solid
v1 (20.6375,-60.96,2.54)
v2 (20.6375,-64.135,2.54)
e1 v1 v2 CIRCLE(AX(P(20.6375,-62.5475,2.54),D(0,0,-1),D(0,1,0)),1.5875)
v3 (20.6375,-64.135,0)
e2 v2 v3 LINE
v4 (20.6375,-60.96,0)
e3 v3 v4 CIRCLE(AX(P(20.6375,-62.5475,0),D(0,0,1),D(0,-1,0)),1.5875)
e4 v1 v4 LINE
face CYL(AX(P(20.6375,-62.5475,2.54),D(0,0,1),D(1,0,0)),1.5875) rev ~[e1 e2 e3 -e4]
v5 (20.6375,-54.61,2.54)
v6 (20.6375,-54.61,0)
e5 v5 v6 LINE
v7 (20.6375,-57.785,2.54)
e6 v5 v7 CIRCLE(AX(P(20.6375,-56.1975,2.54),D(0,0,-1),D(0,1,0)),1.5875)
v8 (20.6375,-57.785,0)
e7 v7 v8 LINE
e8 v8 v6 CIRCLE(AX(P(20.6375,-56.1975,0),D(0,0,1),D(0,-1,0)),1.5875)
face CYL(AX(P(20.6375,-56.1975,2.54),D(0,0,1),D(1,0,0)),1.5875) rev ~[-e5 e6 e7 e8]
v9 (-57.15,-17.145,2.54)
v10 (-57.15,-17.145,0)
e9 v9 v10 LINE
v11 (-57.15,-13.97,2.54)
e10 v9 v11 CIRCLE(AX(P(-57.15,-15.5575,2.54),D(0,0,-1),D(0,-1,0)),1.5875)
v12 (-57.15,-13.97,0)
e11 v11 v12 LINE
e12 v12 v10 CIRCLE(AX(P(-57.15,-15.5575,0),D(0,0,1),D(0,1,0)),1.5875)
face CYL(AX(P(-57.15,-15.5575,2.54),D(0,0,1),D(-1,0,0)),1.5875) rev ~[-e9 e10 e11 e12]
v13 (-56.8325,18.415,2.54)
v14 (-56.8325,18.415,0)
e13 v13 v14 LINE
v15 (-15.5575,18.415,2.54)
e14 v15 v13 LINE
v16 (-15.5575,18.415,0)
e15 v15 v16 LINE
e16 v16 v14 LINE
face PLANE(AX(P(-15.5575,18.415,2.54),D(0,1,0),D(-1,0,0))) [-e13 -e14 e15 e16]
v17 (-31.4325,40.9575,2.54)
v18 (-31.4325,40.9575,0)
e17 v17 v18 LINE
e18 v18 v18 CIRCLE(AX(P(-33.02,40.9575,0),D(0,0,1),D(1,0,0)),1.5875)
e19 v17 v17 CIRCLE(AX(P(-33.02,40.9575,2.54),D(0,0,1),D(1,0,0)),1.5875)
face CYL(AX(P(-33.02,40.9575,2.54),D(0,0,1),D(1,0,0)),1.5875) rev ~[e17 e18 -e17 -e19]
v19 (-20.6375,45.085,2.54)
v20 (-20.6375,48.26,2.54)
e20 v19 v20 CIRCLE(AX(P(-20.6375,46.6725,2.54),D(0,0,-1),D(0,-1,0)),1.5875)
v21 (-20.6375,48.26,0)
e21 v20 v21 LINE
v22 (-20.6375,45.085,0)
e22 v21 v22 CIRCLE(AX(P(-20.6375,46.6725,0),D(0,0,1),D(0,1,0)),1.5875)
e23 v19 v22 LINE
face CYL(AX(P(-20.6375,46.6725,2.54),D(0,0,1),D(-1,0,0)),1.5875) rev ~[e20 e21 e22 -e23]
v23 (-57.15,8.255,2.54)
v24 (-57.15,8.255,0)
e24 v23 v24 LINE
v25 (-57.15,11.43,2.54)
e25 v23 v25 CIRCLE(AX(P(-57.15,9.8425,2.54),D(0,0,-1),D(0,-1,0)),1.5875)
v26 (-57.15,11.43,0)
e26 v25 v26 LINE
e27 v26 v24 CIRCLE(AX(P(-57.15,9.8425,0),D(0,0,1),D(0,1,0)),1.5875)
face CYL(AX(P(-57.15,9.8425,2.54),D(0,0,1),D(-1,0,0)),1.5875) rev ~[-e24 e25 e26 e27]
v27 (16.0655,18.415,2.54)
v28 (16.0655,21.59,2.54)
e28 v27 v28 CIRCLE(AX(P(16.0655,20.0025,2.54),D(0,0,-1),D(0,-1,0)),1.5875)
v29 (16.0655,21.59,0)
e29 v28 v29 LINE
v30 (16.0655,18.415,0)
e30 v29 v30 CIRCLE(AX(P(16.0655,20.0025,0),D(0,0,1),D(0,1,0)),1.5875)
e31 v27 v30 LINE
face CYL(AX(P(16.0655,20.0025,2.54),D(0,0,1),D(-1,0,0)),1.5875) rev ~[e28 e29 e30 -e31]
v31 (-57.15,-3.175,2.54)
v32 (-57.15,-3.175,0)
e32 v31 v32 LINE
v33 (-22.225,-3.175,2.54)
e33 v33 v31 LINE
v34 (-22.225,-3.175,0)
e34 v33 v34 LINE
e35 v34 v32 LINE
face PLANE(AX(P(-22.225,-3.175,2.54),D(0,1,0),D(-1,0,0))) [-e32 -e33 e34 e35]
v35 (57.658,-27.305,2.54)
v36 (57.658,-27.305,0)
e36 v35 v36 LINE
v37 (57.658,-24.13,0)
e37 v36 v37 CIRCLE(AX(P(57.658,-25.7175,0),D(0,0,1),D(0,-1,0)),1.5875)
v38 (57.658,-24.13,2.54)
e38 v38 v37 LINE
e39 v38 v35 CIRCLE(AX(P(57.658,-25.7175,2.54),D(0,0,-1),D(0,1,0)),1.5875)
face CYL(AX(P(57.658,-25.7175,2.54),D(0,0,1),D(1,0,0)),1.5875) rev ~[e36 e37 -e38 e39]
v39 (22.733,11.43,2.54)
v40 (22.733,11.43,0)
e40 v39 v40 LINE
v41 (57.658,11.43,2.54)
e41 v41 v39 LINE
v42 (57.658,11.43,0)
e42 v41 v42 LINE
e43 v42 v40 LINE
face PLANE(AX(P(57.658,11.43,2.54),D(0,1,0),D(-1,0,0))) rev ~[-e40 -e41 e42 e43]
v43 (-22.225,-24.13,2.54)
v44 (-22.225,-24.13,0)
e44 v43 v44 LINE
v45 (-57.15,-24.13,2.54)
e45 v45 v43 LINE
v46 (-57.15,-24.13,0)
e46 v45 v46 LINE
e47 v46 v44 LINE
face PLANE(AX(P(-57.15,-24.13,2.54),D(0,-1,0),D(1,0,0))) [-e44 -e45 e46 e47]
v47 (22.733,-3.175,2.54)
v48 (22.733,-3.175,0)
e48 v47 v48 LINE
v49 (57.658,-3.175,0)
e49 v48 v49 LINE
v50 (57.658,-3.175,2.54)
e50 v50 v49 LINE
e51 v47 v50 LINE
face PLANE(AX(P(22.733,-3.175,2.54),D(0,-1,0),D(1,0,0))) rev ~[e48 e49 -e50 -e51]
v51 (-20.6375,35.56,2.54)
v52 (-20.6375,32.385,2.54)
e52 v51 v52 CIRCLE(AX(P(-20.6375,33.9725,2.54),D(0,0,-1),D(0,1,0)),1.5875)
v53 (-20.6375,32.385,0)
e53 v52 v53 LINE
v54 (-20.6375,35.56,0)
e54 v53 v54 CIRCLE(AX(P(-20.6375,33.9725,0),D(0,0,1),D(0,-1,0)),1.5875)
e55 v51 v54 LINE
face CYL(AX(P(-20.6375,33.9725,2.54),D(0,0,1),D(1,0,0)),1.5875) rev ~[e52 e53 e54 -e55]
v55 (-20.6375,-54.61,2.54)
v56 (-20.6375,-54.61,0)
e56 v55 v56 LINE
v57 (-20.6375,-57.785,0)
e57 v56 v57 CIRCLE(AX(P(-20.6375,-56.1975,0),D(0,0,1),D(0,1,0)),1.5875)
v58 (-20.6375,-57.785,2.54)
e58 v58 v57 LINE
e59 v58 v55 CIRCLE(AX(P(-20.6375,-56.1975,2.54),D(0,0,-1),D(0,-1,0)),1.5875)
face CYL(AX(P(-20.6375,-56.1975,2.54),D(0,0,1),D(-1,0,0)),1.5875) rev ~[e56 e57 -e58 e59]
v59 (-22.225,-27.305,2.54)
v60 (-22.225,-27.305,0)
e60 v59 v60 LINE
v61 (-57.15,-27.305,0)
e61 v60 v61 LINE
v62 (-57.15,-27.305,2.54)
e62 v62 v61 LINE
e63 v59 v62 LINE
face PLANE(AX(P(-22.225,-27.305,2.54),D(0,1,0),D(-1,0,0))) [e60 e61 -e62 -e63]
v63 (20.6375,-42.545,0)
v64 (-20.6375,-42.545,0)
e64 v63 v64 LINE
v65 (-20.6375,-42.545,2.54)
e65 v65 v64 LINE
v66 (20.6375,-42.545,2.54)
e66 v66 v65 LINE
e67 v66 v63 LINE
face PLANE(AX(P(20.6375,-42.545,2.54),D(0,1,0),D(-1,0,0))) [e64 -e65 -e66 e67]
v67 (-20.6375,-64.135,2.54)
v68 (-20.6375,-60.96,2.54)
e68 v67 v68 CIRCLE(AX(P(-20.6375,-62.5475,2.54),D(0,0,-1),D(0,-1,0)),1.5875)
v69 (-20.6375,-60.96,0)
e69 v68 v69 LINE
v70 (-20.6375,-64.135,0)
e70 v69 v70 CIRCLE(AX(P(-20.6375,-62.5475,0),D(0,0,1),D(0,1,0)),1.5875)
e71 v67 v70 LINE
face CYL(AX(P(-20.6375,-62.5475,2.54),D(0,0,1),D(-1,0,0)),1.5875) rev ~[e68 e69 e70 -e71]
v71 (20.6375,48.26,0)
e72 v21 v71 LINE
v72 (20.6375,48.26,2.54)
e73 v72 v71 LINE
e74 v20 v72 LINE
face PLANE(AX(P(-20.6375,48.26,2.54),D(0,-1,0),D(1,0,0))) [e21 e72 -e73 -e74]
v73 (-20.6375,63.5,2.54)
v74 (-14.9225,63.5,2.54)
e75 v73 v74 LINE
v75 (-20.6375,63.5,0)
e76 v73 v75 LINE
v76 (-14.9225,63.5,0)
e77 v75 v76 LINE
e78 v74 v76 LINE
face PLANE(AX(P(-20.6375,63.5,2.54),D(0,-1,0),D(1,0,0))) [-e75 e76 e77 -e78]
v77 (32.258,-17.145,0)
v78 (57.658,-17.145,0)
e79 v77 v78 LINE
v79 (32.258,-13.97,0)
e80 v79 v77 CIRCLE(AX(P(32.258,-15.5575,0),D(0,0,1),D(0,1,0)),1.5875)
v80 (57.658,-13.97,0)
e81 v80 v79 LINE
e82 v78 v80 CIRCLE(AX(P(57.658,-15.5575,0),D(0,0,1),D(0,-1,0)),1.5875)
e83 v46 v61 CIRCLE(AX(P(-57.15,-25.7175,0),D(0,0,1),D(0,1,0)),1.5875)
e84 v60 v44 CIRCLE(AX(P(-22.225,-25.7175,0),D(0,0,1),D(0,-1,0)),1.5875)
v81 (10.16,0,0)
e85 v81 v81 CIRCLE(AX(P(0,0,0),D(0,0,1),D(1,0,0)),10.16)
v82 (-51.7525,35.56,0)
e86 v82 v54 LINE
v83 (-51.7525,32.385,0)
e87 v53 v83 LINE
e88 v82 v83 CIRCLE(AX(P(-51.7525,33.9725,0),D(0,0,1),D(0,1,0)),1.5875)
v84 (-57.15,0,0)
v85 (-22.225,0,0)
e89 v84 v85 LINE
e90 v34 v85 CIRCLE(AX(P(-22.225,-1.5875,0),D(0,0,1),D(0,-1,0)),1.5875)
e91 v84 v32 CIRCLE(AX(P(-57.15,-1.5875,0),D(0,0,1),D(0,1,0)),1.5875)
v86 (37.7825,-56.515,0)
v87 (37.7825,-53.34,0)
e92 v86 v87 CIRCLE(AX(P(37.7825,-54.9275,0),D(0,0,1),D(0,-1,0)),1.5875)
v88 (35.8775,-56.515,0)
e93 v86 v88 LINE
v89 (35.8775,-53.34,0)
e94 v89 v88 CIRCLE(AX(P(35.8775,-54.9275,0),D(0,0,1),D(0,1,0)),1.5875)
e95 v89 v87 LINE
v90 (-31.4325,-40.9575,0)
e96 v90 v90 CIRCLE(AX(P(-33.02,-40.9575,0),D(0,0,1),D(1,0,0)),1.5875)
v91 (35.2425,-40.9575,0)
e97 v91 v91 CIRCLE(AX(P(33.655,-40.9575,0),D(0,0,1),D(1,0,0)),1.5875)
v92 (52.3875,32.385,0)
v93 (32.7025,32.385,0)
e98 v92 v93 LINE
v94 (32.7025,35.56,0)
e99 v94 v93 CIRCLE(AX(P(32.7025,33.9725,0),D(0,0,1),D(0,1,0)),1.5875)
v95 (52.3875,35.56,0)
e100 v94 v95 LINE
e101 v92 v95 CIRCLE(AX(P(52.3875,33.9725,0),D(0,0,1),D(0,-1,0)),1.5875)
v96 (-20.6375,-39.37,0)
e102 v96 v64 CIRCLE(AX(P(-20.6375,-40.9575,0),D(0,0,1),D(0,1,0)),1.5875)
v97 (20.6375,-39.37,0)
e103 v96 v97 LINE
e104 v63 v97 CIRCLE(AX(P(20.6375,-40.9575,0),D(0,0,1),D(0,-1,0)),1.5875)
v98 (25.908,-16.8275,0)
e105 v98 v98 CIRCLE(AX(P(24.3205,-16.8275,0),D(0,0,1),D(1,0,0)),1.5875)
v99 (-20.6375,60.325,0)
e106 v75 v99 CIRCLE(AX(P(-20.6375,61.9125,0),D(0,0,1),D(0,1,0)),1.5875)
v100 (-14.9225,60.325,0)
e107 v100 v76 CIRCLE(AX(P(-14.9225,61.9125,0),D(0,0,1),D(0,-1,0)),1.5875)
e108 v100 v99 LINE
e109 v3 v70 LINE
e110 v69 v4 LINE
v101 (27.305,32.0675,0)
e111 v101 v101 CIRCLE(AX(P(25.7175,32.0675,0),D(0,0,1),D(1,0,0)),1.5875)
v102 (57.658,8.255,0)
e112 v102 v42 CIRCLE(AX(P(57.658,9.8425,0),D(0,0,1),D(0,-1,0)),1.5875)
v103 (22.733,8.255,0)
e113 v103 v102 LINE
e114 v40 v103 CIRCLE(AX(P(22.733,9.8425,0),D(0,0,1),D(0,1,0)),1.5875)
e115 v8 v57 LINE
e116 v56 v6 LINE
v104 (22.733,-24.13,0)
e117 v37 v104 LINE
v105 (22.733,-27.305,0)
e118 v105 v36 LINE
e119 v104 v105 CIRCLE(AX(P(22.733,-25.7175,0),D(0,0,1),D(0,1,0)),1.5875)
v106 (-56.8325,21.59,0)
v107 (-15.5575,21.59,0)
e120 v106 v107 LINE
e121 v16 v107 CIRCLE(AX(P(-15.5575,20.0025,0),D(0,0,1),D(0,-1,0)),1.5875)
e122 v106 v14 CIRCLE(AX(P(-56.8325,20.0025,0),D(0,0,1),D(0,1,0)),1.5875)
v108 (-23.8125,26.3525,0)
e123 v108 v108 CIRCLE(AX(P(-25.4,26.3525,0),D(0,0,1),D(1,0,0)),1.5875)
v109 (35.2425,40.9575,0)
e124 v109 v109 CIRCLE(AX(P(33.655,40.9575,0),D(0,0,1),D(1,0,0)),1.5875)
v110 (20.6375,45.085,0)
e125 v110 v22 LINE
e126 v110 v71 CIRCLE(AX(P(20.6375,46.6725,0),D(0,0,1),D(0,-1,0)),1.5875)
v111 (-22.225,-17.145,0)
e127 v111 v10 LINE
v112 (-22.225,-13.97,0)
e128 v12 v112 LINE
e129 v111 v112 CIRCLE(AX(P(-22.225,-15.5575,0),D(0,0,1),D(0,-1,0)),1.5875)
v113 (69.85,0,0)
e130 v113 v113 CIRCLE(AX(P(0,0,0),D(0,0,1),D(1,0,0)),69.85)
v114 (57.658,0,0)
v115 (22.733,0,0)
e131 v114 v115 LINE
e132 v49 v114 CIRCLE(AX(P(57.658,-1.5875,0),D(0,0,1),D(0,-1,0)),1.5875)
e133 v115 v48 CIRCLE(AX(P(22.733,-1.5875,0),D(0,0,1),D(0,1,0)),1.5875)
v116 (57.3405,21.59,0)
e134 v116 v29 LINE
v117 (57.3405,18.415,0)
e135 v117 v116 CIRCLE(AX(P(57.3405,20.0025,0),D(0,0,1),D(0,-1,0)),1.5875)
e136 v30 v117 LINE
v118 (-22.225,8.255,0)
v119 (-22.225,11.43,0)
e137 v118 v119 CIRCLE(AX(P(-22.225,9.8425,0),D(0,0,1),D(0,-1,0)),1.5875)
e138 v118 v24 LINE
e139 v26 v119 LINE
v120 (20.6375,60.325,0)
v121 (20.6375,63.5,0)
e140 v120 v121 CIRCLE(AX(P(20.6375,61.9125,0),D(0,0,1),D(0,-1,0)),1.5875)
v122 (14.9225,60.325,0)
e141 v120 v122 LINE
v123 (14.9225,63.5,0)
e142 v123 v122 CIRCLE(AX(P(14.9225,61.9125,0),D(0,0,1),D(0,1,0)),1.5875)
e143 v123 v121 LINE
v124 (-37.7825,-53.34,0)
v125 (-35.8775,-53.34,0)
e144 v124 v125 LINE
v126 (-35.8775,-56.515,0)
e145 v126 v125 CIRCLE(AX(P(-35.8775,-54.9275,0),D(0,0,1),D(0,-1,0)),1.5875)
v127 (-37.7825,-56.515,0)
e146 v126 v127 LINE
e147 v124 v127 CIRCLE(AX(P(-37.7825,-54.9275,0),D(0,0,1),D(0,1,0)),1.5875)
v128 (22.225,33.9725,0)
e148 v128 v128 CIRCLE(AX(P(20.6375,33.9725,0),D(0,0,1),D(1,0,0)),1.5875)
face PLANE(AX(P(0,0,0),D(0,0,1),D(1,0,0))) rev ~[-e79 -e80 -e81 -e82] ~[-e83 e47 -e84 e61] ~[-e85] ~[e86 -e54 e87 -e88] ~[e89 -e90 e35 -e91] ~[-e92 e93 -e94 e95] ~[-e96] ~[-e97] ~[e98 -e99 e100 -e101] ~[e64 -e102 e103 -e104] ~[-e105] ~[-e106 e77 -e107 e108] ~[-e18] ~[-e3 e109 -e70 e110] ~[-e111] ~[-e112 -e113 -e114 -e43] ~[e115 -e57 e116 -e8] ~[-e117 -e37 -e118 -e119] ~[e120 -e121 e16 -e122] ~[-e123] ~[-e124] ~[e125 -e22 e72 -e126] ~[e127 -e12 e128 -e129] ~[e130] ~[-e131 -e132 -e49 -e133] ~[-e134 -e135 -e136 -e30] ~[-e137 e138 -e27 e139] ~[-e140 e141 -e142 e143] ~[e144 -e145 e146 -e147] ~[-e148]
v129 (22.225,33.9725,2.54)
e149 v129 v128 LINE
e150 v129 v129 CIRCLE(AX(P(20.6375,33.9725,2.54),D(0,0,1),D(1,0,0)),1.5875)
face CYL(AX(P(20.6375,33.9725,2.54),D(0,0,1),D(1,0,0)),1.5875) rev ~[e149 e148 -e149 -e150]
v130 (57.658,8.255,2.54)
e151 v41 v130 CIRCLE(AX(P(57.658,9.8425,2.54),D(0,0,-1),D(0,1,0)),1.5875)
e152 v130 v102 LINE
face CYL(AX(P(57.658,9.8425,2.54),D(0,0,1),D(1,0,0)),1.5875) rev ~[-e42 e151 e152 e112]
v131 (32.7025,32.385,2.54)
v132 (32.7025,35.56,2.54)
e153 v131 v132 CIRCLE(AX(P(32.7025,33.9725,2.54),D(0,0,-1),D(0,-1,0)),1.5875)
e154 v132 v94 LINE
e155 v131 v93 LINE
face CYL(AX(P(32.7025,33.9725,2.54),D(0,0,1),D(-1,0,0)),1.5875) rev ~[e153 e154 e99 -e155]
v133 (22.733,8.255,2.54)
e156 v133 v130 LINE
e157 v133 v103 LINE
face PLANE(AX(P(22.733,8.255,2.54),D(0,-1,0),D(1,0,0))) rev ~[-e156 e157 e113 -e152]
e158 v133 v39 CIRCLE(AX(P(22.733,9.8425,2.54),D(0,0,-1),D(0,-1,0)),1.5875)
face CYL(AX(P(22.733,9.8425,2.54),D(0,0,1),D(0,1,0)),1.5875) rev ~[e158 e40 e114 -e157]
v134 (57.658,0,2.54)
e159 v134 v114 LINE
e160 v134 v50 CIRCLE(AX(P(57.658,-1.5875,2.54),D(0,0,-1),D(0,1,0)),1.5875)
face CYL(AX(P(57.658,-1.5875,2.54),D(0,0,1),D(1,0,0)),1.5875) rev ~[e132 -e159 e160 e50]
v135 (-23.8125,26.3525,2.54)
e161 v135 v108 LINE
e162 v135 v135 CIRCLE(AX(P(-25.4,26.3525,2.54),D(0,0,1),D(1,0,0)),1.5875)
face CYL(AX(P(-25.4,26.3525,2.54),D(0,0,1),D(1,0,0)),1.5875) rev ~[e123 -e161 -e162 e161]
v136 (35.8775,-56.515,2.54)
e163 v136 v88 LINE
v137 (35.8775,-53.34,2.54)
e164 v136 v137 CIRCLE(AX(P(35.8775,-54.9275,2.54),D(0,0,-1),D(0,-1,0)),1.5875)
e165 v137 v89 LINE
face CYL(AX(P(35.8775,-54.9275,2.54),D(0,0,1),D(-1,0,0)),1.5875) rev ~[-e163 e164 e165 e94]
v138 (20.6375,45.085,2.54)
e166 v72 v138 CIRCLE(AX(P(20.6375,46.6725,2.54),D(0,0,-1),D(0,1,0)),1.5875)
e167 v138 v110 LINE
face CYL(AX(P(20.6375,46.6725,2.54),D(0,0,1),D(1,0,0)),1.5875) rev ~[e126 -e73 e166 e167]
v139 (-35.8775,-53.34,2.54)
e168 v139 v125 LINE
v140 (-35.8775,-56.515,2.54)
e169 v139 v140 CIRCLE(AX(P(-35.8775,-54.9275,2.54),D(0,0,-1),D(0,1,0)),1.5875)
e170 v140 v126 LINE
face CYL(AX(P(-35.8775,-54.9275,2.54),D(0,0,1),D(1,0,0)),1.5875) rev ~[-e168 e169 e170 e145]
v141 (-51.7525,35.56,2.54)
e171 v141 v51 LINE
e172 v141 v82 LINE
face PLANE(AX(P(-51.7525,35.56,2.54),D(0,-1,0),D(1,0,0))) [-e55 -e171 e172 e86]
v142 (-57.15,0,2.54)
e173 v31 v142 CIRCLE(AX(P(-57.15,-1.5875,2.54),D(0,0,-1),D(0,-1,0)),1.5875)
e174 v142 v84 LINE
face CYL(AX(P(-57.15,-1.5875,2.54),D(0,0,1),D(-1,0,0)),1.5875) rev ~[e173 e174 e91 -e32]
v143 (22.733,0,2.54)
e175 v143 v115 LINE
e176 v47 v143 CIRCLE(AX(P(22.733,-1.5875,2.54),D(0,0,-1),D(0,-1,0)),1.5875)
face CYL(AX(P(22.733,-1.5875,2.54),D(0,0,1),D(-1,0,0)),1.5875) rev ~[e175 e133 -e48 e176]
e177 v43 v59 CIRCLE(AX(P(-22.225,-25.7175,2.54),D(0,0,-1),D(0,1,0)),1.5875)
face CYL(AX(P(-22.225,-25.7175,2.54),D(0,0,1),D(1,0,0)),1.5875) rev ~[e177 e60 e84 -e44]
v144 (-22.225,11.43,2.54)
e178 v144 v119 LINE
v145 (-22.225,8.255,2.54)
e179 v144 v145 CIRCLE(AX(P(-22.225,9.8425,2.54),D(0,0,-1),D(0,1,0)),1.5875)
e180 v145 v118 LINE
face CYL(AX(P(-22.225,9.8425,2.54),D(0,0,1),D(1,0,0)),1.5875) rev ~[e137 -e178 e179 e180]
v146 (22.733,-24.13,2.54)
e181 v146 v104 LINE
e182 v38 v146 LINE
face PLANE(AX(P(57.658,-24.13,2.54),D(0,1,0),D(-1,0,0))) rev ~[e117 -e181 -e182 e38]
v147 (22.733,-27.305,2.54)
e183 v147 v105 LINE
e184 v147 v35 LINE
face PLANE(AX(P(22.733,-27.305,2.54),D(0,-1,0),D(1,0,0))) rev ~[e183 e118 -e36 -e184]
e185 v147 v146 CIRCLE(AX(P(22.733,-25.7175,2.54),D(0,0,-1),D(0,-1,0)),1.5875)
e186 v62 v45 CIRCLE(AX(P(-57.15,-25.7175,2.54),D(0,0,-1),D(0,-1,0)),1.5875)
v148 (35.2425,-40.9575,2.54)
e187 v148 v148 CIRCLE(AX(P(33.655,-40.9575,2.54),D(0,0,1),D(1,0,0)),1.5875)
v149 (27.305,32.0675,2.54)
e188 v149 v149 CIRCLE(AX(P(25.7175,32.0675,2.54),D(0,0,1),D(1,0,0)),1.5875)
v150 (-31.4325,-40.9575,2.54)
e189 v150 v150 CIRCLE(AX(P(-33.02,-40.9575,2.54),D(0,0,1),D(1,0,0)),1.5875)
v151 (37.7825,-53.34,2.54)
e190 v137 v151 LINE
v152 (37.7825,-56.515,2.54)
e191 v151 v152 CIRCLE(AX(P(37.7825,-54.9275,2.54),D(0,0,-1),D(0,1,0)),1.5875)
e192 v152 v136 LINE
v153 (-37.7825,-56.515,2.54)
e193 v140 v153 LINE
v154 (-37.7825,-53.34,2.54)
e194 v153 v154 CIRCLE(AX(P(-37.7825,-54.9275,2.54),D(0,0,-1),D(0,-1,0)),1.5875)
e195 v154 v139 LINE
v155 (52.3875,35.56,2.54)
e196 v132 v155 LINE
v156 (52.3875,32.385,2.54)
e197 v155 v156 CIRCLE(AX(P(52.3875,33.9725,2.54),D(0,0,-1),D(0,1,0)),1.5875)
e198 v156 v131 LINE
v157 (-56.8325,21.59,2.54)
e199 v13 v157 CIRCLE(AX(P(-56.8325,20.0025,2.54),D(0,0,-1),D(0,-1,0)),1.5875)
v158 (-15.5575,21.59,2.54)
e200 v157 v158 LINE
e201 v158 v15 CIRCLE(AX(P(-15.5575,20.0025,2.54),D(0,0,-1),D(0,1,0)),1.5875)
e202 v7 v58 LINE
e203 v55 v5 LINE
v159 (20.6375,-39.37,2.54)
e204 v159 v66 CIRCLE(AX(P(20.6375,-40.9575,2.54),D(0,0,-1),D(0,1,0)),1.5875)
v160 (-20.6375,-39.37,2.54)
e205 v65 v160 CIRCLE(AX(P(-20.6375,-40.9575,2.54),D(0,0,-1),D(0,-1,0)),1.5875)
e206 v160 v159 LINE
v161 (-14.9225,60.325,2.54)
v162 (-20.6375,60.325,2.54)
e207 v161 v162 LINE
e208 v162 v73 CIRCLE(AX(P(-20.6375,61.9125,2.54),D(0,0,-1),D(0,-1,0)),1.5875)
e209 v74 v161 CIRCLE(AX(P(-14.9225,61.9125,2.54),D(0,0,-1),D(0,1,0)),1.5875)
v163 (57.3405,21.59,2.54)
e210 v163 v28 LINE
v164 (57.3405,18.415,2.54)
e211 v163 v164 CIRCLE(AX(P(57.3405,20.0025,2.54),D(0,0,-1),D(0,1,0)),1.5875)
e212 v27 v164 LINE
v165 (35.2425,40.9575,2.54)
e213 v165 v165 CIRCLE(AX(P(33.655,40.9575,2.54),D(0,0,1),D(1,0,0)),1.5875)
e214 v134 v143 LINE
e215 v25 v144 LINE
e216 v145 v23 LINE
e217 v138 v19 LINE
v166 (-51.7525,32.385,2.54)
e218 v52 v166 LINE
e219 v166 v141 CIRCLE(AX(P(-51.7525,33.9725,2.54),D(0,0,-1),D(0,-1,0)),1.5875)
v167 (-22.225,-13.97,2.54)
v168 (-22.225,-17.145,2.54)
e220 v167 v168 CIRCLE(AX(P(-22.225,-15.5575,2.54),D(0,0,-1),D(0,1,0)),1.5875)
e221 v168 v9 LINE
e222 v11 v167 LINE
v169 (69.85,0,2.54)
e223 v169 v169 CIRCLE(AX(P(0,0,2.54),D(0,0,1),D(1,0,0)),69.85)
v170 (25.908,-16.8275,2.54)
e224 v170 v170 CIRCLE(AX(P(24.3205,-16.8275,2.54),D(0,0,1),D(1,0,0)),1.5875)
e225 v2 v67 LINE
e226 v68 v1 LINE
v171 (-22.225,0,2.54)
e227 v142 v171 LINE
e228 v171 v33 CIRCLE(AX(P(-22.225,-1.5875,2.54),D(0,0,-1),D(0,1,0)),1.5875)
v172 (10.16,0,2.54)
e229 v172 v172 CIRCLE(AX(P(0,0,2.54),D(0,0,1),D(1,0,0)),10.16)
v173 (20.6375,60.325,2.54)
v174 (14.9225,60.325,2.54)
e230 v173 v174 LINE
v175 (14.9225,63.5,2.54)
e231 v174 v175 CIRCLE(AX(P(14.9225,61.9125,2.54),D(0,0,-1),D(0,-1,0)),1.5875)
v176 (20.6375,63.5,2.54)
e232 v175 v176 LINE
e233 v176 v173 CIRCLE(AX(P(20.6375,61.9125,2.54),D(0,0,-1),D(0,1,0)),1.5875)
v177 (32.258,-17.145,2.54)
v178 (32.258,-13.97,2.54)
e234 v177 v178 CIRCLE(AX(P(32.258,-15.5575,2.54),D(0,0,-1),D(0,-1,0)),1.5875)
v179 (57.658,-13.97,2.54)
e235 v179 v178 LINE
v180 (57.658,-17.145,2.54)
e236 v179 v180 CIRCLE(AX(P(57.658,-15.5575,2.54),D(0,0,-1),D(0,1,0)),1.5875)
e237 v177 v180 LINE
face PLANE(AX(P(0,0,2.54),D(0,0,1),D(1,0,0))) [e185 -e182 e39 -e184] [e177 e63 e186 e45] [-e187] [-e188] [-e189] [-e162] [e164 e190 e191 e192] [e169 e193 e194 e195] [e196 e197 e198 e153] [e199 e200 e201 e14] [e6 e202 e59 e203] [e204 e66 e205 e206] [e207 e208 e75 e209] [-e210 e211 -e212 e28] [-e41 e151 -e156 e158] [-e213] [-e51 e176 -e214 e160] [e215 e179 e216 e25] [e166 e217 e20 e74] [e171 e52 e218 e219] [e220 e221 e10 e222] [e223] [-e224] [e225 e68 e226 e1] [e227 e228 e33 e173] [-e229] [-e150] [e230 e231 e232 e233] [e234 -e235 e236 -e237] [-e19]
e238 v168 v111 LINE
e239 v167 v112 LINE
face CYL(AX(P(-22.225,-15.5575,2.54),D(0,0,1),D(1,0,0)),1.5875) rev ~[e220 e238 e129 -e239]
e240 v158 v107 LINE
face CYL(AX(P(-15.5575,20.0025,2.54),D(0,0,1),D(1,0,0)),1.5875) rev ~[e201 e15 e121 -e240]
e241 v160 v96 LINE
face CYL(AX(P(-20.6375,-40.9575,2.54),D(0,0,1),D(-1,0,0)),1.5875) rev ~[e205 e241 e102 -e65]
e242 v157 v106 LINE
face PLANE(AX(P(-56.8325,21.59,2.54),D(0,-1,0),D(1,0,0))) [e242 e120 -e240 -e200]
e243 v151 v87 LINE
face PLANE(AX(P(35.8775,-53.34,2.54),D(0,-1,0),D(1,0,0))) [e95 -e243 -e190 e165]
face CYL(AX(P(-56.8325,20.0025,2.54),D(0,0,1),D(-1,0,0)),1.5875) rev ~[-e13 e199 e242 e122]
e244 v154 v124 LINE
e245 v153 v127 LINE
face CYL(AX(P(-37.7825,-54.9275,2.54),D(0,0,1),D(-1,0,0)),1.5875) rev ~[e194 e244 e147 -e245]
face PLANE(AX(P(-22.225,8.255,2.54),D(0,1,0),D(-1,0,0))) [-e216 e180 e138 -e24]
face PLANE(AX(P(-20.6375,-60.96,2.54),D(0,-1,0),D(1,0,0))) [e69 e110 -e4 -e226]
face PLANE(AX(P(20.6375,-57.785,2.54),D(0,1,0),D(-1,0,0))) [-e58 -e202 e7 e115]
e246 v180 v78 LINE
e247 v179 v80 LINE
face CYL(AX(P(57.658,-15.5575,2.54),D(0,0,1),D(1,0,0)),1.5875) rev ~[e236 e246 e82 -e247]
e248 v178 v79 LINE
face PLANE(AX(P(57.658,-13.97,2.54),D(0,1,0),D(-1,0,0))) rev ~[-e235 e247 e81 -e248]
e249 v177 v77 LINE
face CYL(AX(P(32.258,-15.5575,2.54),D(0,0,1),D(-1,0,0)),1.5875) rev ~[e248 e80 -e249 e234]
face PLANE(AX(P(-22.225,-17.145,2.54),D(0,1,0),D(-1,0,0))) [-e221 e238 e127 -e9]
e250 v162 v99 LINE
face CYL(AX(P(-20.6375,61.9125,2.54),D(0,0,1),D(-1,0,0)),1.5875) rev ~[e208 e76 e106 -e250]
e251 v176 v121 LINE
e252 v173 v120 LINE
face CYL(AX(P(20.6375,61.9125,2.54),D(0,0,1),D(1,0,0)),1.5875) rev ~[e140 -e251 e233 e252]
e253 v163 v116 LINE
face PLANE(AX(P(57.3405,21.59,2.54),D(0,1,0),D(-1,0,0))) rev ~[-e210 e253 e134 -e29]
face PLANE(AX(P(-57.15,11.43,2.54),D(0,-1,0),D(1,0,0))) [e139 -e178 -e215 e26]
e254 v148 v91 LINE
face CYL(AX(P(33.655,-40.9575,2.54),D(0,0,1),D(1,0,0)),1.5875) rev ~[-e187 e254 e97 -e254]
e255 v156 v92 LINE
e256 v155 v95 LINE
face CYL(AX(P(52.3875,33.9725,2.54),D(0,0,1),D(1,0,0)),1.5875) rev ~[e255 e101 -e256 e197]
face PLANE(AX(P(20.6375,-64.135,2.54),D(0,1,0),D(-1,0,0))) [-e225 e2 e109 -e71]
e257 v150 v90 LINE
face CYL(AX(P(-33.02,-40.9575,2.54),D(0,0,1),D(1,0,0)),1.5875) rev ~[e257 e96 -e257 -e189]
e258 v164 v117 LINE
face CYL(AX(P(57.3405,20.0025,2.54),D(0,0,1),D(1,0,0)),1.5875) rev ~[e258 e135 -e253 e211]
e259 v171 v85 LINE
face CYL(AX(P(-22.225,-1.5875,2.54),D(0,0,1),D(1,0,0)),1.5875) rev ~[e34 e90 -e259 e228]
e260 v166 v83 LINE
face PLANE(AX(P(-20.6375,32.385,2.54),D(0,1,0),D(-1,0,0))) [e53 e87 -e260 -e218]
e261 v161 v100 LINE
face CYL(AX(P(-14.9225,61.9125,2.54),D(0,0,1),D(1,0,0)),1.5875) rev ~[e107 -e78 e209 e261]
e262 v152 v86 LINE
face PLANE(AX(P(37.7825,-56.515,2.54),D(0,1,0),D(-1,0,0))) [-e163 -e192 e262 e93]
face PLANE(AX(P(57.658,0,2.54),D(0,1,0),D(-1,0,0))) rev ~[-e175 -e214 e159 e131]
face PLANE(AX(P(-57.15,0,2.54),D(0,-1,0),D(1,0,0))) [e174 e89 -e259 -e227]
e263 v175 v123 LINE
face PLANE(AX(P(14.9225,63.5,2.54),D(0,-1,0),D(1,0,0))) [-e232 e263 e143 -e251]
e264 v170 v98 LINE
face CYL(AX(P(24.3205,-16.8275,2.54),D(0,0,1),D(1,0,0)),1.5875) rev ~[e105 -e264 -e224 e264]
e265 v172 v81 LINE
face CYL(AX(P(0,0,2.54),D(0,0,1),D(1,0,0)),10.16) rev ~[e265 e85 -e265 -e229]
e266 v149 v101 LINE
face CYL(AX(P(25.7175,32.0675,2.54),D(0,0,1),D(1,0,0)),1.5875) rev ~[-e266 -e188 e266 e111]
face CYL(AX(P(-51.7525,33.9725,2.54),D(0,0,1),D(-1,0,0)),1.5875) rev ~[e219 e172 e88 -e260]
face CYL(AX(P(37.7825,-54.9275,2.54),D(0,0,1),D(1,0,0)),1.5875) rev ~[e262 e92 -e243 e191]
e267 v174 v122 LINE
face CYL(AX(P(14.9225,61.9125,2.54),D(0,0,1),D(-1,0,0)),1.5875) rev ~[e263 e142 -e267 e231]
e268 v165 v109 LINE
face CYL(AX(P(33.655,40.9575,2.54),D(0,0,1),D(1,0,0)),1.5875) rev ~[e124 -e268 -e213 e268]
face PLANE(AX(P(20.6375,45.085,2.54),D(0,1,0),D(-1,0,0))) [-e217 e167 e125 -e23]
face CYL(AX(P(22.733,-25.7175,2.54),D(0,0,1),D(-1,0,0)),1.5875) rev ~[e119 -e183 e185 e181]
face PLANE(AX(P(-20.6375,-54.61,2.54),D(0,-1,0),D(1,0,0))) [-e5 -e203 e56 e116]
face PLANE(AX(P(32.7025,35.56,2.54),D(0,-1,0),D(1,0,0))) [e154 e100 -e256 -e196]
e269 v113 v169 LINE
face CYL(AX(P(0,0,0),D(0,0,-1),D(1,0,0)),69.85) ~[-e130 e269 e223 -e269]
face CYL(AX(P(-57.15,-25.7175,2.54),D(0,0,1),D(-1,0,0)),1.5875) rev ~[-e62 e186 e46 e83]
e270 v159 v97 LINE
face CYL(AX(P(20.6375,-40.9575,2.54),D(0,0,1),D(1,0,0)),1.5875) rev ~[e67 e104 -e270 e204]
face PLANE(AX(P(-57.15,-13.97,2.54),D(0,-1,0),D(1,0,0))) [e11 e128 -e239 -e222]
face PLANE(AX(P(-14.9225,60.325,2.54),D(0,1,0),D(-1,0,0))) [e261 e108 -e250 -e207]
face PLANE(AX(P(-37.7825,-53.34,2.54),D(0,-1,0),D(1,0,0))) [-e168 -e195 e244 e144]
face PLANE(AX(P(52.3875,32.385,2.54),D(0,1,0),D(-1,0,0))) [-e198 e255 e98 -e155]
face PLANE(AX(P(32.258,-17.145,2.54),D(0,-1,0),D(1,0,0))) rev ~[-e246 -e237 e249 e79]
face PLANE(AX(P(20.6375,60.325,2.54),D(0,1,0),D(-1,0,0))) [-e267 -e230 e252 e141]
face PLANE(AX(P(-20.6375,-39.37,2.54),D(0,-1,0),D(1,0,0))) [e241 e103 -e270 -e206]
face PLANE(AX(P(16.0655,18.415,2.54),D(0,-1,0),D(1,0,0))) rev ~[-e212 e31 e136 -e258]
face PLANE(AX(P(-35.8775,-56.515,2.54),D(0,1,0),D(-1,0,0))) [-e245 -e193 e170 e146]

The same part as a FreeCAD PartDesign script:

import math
import FreeCAD as App
import Part
import Sketcher

V = App.Vector
Q = App.Units.Quantity

doc = App.newDocument("Part")
body = doc.addObject("PartDesign::Body", "Body")

# Sketch on XY plane
sketch1 = body.newObject("Sketcher::SketchObject", "Sketch")
sketch1.AttachmentSupport = (doc.getObject("XY_Plane"), [""])
sketch1.MapMode = "FlatFace"
sketch1.addGeometry(Part.Circle(V(0, 0, 0), V(0, 0, 1), 70), False)
sketch1.addConstraint([
    Sketcher.Constraint("Coincident", 0, 3, -1, 1),
    Sketcher.Constraint("Diameter", 0, Q("5.5 in")),
])
pad1 = body.newObject("PartDesign::Pad", "Pad")
pad1.Profile = sketch1
pad1.Length = Q("0.1 in")

# Sketch on XY plane
sketch2 = body.newObject("Sketcher::SketchObject", "Sketch001")
sketch2.AttachmentSupport = (doc.getObject("XY_Plane"), [""])
sketch2.MapMode = "FlatFace"
sketch2.AttachmentOffset = App.Placement(V(0, 0, 0.1 * 25.4), App.Rotation())
sketch2.addGeometry(Part.Circle(V(0, 0, 0), V(0, 0, 1), 10), False)
sketch2.addConstraint([
    Sketcher.Constraint("Coincident", 0, 3, -1, 1),
    Sketcher.Constraint("Diameter", 0, Q("0.8 in")),
])
pocket1 = body.newObject("PartDesign::Pocket", "Pocket")
pocket1.Profile = sketch2
pocket1.Length = Q("0.1 in")

# Sketch on XY plane
sketch3 = body.newObject("Sketcher::SketchObject", "Sketch002")
sketch3.AttachmentSupport = (doc.getObject("XY_Plane"), [""])
sketch3.MapMode = "FlatFace"
sketch3.AttachmentOffset = App.Placement(V(0, 0, 0.1 * 25.4), App.Rotation())
sketch3.addGeometry([
    Part.LineSegment(V(20.6, 48.3, 0), V(-20.6, 48.3, 0)),  # 0
    Part.ArcOfCircle(Part.Circle(V(-20.6, 46.7, 0), V(0, 0, 1), 1.6), math.radians(90), math.radians(270)),  # 1
    Part.LineSegment(V(-20.6, 45.1, 0), V(20.6, 45.1, 0)),  # 2
    Part.ArcOfCircle(Part.Circle(V(20.6, 46.7, 0), V(0, 0, 1), 1.6), math.radians(-90), math.radians(90)),  # 3
    Part.LineSegment(V(20.6, 63.5, 0), V(14.9, 63.5, 0)),  # 4
    Part.ArcOfCircle(Part.Circle(V(14.9, 61.9, 0), V(0, 0, 1), 1.6), math.radians(90), math.radians(270)),  # 5
    Part.LineSegment(V(14.9, 60.3, 0), V(20.6, 60.3, 0)),  # 6
    Part.ArcOfCircle(Part.Circle(V(20.6, 61.9, 0), V(0, 0, 1), 1.6), math.radians(-90), math.radians(90)),  # 7
    Part.LineSegment(V(-20.6, 60.3, 0), V(-14.9, 60.3, 0)),  # 8
    Part.ArcOfCircle(Part.Circle(V(-14.9, 61.9, 0), V(0, 0, 1), 1.6), math.radians(-90), math.radians(90)),  # 9
    Part.LineSegment(V(-14.9, 63.5, 0), V(-20.6, 63.5, 0)),  # 10
    Part.ArcOfCircle(Part.Circle(V(-20.6, 61.9, 0), V(0, 0, 1), 1.6), math.radians(90), math.radians(270)),  # 11
    Part.Circle(V(20.6, 34, 0), V(0, 0, 1), 1.6),  # 12
    Part.LineSegment(V(52.4, 35.6, 0), V(32.7, 35.6, 0)),  # 13
    Part.ArcOfCircle(Part.Circle(V(32.7, 34, 0), V(0, 0, 1), 1.6), math.radians(90), math.radians(270)),  # 14
    Part.LineSegment(V(32.7, 32.4, 0), V(52.4, 32.4, 0)),  # 15
    Part.ArcOfCircle(Part.Circle(V(52.4, 34, 0), V(0, 0, 1), 1.6), math.radians(-90), math.radians(90)),  # 16
    Part.Circle(V(33.7, 41, 0), V(0, 0, 1), 1.6),  # 17
    Part.Circle(V(25.7, 32.1, 0), V(0, 0, 1), 1.6),  # 18
    Part.Circle(V(-33, 41, 0), V(0, 0, 1), 1.6),  # 19
    Part.LineSegment(V(-20.6, 35.6, 0), V(-51.8, 35.6, 0)),  # 20
    Part.ArcOfCircle(Part.Circle(V(-51.8, 34, 0), V(0, 0, 1), 1.6), math.radians(90), math.radians(270)),  # 21
    Part.LineSegment(V(-51.8, 32.4, 0), V(-20.6, 32.4, 0)),  # 22
    Part.ArcOfCircle(Part.Circle(V(-20.6, 34, 0), V(0, 0, 1), 1.6), math.radians(-90), math.radians(90)),  # 23
    Part.Circle(V(-25.4, 26.4, 0), V(0, 0, 1), 1.6),  # 24
    Part.LineSegment(V(-15.6, 21.6, 0), V(-56.8, 21.6, 0)),  # 25
    Part.ArcOfCircle(Part.Circle(V(-56.8, 20, 0), V(0, 0, 1), 1.6), math.radians(90), math.radians(270)),  # 26
    Part.LineSegment(V(-56.8, 18.4, 0), V(-15.6, 18.4, 0)),  # 27
    Part.ArcOfCircle(Part.Circle(V(-15.6, 20, 0), V(0, 0, 1), 1.6), math.radians(-90), math.radians(90)),  # 28
    Part.LineSegment(V(-22.2, 11.4, 0), V(-57.1, 11.4, 0)),  # 29
    Part.ArcOfCircle(Part.Circle(V(-57.1, 9.8, 0), V(0, 0, 1), 1.6), math.radians(90), math.radians(270)),  # 30
    Part.LineSegment(V(-57.1, 8.3, 0), V(-22.2, 8.3, 0)),  # 31
    Part.ArcOfCircle(Part.Circle(V(-22.2, 9.8, 0), V(0, 0, 1), 1.6), math.radians(-90), math.radians(90)),  # 32
    Part.LineSegment(V(-22.2, 0, 0), V(-57.1, 0, 0)),  # 33
    Part.ArcOfCircle(Part.Circle(V(-57.1, -1.6, 0), V(0, 0, 1), 1.6), math.radians(90), math.radians(270)),  # 34
    Part.LineSegment(V(-57.1, -3.2, 0), V(-22.2, -3.2, 0)),  # 35
    Part.ArcOfCircle(Part.Circle(V(-22.2, -1.6, 0), V(0, 0, 1), 1.6), math.radians(-90), math.radians(90)),  # 36
    Part.LineSegment(V(-22.2, -14, 0), V(-57.1, -14, 0)),  # 37
    Part.ArcOfCircle(Part.Circle(V(-57.1, -15.6, 0), V(0, 0, 1), 1.6), math.radians(90), math.radians(270)),  # 38
    Part.LineSegment(V(-57.1, -17.1, 0), V(-22.2, -17.1, 0)),  # 39
    Part.ArcOfCircle(Part.Circle(V(-22.2, -15.6, 0), V(0, 0, 1), 1.6), math.radians(-90), math.radians(90)),  # 40
    Part.LineSegment(V(-22.2, -24.1, 0), V(-57.1, -24.1, 0)),  # 41
    Part.ArcOfCircle(Part.Circle(V(-57.1, -25.7, 0), V(0, 0, 1), 1.6), math.radians(90), math.radians(270)),  # 42
    Part.LineSegment(V(-57.1, -27.3, 0), V(-22.2, -27.3, 0)),  # 43
    Part.ArcOfCircle(Part.Circle(V(-22.2, -25.7, 0), V(0, 0, 1), 1.6), math.radians(-90), math.radians(90)),  # 44
    Part.LineSegment(V(57.7, -24.1, 0), V(22.7, -24.1, 0)),  # 45
    Part.ArcOfCircle(Part.Circle(V(22.7, -25.7, 0), V(0, 0, 1), 1.6), math.radians(90), math.radians(270)),  # 46
    Part.LineSegment(V(22.7, -27.3, 0), V(57.7, -27.3, 0)),  # 47
    Part.ArcOfCircle(Part.Circle(V(57.7, -25.7, 0), V(0, 0, 1), 1.6), math.radians(-90), math.radians(90)),  # 48
    Part.ArcOfCircle(Part.Circle(V(22.7, 9.8, 0), V(0, 0, 1), 1.6), math.radians(90), math.radians(270)),  # 49
    Part.LineSegment(V(22.7, 8.3, 0), V(57.7, 8.3, 0)),  # 50
    Part.ArcOfCircle(Part.Circle(V(57.7, 9.8, 0), V(0, 0, 1), 1.6), math.radians(-90), math.radians(90)),  # 51
    Part.LineSegment(V(57.7, 11.4, 0), V(22.7, 11.4, 0)),  # 52
    Part.ArcOfCircle(Part.Circle(V(22.7, -1.6, 0), V(0, 0, 1), 1.6), math.radians(90), math.radians(270)),  # 53
    Part.LineSegment(V(22.7, -3.2, 0), V(57.7, -3.2, 0)),  # 54
    Part.ArcOfCircle(Part.Circle(V(57.7, -1.6, 0), V(0, 0, 1), 1.6), math.radians(-90), math.radians(90)),  # 55
    Part.LineSegment(V(57.7, 0, 0), V(22.7, 0, 0)),  # 56
    Part.LineSegment(V(16.1, 18.4, 0), V(57.3, 18.4, 0)),  # 57
    Part.ArcOfCircle(Part.Circle(V(57.3, 20, 0), V(0, 0, 1), 1.6), math.radians(-90), math.radians(90)),  # 58
    Part.LineSegment(V(57.3, 21.6, 0), V(16.1, 21.6, 0)),  # 59
    Part.ArcOfCircle(Part.Circle(V(16.1, 20, 0), V(0, 0, 1), 1.6), math.radians(90), math.radians(270)),  # 60
    Part.ArcOfCircle(Part.Circle(V(32.3, -15.6, 0), V(0, 0, 1), 1.6), math.radians(90), math.radians(270)),  # 61
    Part.LineSegment(V(32.3, -17.1, 0), V(57.7, -17.1, 0)),  # 62
    Part.ArcOfCircle(Part.Circle(V(57.7, -15.6, 0), V(0, 0, 1), 1.6), math.radians(-90), math.radians(90)),  # 63
    Part.LineSegment(V(57.7, -14, 0), V(32.3, -14, 0)),  # 64
    Part.Circle(V(24.3, -16.8, 0), V(0, 0, 1), 1.6),  # 65
    Part.Circle(V(33.7, -41, 0), V(0, 0, 1), 1.6),  # 66
    Part.Circle(V(-33, -41, 0), V(0, 0, 1), 1.6),  # 67
    Part.LineSegment(V(20.6, -39.4, 0), V(-20.6, -39.4, 0)),  # 68
    Part.ArcOfCircle(Part.Circle(V(-20.6, -41, 0), V(0, 0, 1), 1.6), math.radians(90), math.radians(270)),  # 69
    Part.LineSegment(V(-20.6, -42.5, 0), V(20.6, -42.5, 0)),  # 70
    Part.ArcOfCircle(Part.Circle(V(20.6, -41, 0), V(0, 0, 1), 1.6), math.radians(-90), math.radians(90)),  # 71
    Part.LineSegment(V(20.6, -54.6, 0), V(-20.6, -54.6, 0)),  # 72
    Part.ArcOfCircle(Part.Circle(V(-20.6, -56.2, 0), V(0, 0, 1), 1.6), math.radians(90), math.radians(270)),  # 73
    Part.LineSegment(V(-20.6, -57.8, 0), V(20.6, -57.8, 0)),  # 74
    Part.ArcOfCircle(Part.Circle(V(20.6, -56.2, 0), V(0, 0, 1), 1.6), math.radians(-90), math.radians(90)),  # 75
    Part.LineSegment(V(20.6, -61, 0), V(-20.6, -61, 0)),  # 76
    Part.ArcOfCircle(Part.Circle(V(-20.6, -62.5, 0), V(0, 0, 1), 1.6), math.radians(90), math.radians(270)),  # 77
    Part.LineSegment(V(-20.6, -64.1, 0), V(20.6, -64.1, 0)),  # 78
    Part.ArcOfCircle(Part.Circle(V(20.6, -62.5, 0), V(0, 0, 1), 1.6), math.radians(-90), math.radians(90)),  # 79
    Part.LineSegment(V(37.8, -53.3, 0), V(35.9, -53.3, 0)),  # 80
    Part.ArcOfCircle(Part.Circle(V(35.9, -54.9, 0), V(0, 0, 1), 1.6), math.radians(90), math.radians(270)),  # 81
    Part.LineSegment(V(35.9, -56.5, 0), V(37.8, -56.5, 0)),  # 82
    Part.ArcOfCircle(Part.Circle(V(37.8, -54.9, 0), V(0, 0, 1), 1.6), math.radians(-90), math.radians(90)),  # 83
    Part.LineSegment(V(-35.9, -53.3, 0), V(-37.8, -53.3, 0)),  # 84
    Part.ArcOfCircle(Part.Circle(V(-37.8, -54.9, 0), V(0, 0, 1), 1.6), math.radians(90), math.radians(270)),  # 85
    Part.LineSegment(V(-37.8, -56.5, 0), V(-35.9, -56.5, 0)),  # 86
    Part.ArcOfCircle(Part.Circle(V(-35.9, -54.9, 0), V(0, 0, 1), 1.6), math.radians(-90), math.radians(90)),  # 87
], False)
sketch3.addConstraint([
    Sketcher.Constraint("Tangent", 0, 2, 1, 1),
    Sketcher.Constraint("Tangent", 1, 2, 2, 1),
    Sketcher.Constraint("Tangent", 2, 2, 3, 1),
    Sketcher.Constraint("Tangent", 3, 2, 0, 1),
    Sketcher.Constraint("Tangent", 4, 2, 5, 1),
    Sketcher.Constraint("Tangent", 5, 2, 6, 1),
    Sketcher.Constraint("Tangent", 6, 2, 7, 1),
    Sketcher.Constraint("Tangent", 7, 2, 4, 1),
    Sketcher.Constraint("Tangent", 8, 2, 9, 1),
    Sketcher.Constraint("Tangent", 9, 2, 10, 1),
    Sketcher.Constraint("Tangent", 10, 2, 11, 1),
    Sketcher.Constraint("Tangent", 11, 2, 8, 1),
    Sketcher.Constraint("Tangent", 13, 2, 14, 1),
    Sketcher.Constraint("Tangent", 14, 2, 15, 1),
    Sketcher.Constraint("Tangent", 15, 2, 16, 1),
    Sketcher.Constraint("Tangent", 16, 2, 13, 1),
    Sketcher.Constraint("Tangent", 20, 2, 21, 1),
    Sketcher.Constraint("Tangent", 21, 2, 22, 1),
    Sketcher.Constraint("Tangent", 22, 2, 23, 1),
    Sketcher.Constraint("Tangent", 23, 2, 20, 1),
    Sketcher.Constraint("Tangent", 25, 2, 26, 1),
    Sketcher.Constraint("Tangent", 26, 2, 27, 1),
    Sketcher.Constraint("Tangent", 27, 2, 28, 1),
    Sketcher.Constraint("Tangent", 28, 2, 25, 1),
    Sketcher.Constraint("Tangent", 29, 2, 30, 1),
    Sketcher.Constraint("Tangent", 30, 2, 31, 1),
    Sketcher.Constraint("Tangent", 31, 2, 32, 1),
    Sketcher.Constraint("Tangent", 32, 2, 29, 1),
    Sketcher.Constraint("Tangent", 33, 2, 34, 1),
    Sketcher.Constraint("Tangent", 34, 2, 35, 1),
    Sketcher.Constraint("Tangent", 35, 2, 36, 1),
    Sketcher.Constraint("Tangent", 36, 2, 33, 1),
    Sketcher.Constraint("Tangent", 37, 2, 38, 1),
    Sketcher.Constraint("Tangent", 38, 2, 39, 1),
    Sketcher.Constraint("Tangent", 39, 2, 40, 1),
    Sketcher.Constraint("Tangent", 40, 2, 37, 1),
    Sketcher.Constraint("Tangent", 41, 2, 42, 1),
    Sketcher.Constraint("Tangent", 42, 2, 43, 1),
    Sketcher.Constraint("Tangent", 43, 2, 44, 1),
    Sketcher.Constraint("Tangent", 44, 2, 41, 1),
    Sketcher.Constraint("Tangent", 45, 2, 46, 1),
    Sketcher.Constraint("Tangent", 46, 2, 47, 1),
    Sketcher.Constraint("Tangent", 47, 2, 48, 1),
    Sketcher.Constraint("Tangent", 48, 2, 45, 1),
    Sketcher.Constraint("Tangent", 49, 2, 50, 1),
    Sketcher.Constraint("Tangent", 50, 2, 51, 1),
    Sketcher.Constraint("Tangent", 51, 2, 52, 1),
    Sketcher.Constraint("Tangent", 52, 2, 49, 1),
    Sketcher.Constraint("Tangent", 53, 2, 54, 1),
    Sketcher.Constraint("Tangent", 54, 2, 55, 1),
    Sketcher.Constraint("Tangent", 55, 2, 56, 1),
    Sketcher.Constraint("Tangent", 56, 2, 53, 1),
    Sketcher.Constraint("Tangent", 57, 2, 58, 1),
    Sketcher.Constraint("Tangent", 58, 2, 59, 1),
    Sketcher.Constraint("Tangent", 59, 2, 60, 1),
    Sketcher.Constraint("Tangent", 60, 2, 57, 1),
    Sketcher.Constraint("Tangent", 61, 2, 62, 1),
    Sketcher.Constraint("Tangent", 62, 2, 63, 1),
    Sketcher.Constraint("Tangent", 63, 2, 64, 1),
    Sketcher.Constraint("Tangent", 64, 2, 61, 1),
    Sketcher.Constraint("Tangent", 68, 2, 69, 1),
    Sketcher.Constraint("Tangent", 69, 2, 70, 1),
    Sketcher.Constraint("Tangent", 70, 2, 71, 1),
    Sketcher.Constraint("Tangent", 71, 2, 68, 1),
    Sketcher.Constraint("Tangent", 72, 2, 73, 1),
    Sketcher.Constraint("Tangent", 73, 2, 74, 1),
    Sketcher.Constraint("Tangent", 74, 2, 75, 1),
    Sketcher.Constraint("Tangent", 75, 2, 72, 1),
    Sketcher.Constraint("Tangent", 76, 2, 77, 1),
    Sketcher.Constraint("Tangent", 77, 2, 78, 1),
    Sketcher.Constraint("Tangent", 78, 2, 79, 1),
    Sketcher.Constraint("Tangent", 79, 2, 76, 1),
    Sketcher.Constraint("Tangent", 80, 2, 81, 1),
    Sketcher.Constraint("Tangent", 81, 2, 82, 1),
    Sketcher.Constraint("Tangent", 82, 2, 83, 1),
    Sketcher.Constraint("Tangent", 83, 2, 80, 1),
    Sketcher.Constraint("Tangent", 84, 2, 85, 1),
    Sketcher.Constraint("Tangent", 85, 2, 86, 1),
    Sketcher.Constraint("Tangent", 86, 2, 87, 1),
    Sketcher.Constraint("Tangent", 87, 2, 84, 1),
    Sketcher.Constraint("Horizontal", 0),
    Sketcher.Constraint("Horizontal", 2),
    Sketcher.Constraint("Horizontal", 4),
    Sketcher.Constraint("Horizontal", 6),
    Sketcher.Constraint("Horizontal", 8),
    Sketcher.Constraint("Horizontal", 10),
    Sketcher.Constraint("Horizontal", 13),
    Sketcher.Constraint("Horizontal", 15),
    Sketcher.Constraint("Horizontal", 20),
    Sketcher.Constraint("Horizontal", 22),
    Sketcher.Constraint("Horizontal", 25),
    Sketcher.Constraint("Horizontal", 27),
    Sketcher.Constraint("Horizontal", 29),
    Sketcher.Constraint("Horizontal", 31),
    Sketcher.Constraint("Horizontal", 33),
    Sketcher.Constraint("Horizontal", 35),
    Sketcher.Constraint("Horizontal", 37),
    Sketcher.Constraint("Horizontal", 39),
    Sketcher.Constraint("Horizontal", 41),
    Sketcher.Constraint("Horizontal", 43),
    Sketcher.Constraint("Horizontal", 45),
    Sketcher.Constraint("Horizontal", 47),
    Sketcher.Constraint("Horizontal", 50),
    Sketcher.Constraint("Horizontal", 52),
    Sketcher.Constraint("Horizontal", 54),
    Sketcher.Constraint("Horizontal", 56),
    Sketcher.Constraint("Horizontal", 57),
    Sketcher.Constraint("Horizontal", 59),
    Sketcher.Constraint("Horizontal", 62),
    Sketcher.Constraint("Horizontal", 64),
    Sketcher.Constraint("Horizontal", 68),
    Sketcher.Constraint("Horizontal", 70),
    Sketcher.Constraint("Horizontal", 72),
    Sketcher.Constraint("Horizontal", 74),
    Sketcher.Constraint("Horizontal", 76),
    Sketcher.Constraint("Horizontal", 78),
    Sketcher.Constraint("Horizontal", 80),
    Sketcher.Constraint("Horizontal", 82),
    Sketcher.Constraint("Horizontal", 84),
    Sketcher.Constraint("Horizontal", 86),
    Sketcher.Constraint("Equal", 3, 5),
    Sketcher.Constraint("Equal", 7, 9),
    Sketcher.Constraint("Equal", 11, 12),
    Sketcher.Constraint("Equal", 12, 14),
    Sketcher.Constraint("Equal", 16, 17),
    Sketcher.Constraint("Equal", 17, 18),
    Sketcher.Constraint("Equal", 18, 19),
    Sketcher.Constraint("Equal", 19, 21),
    Sketcher.Constraint("Equal", 23, 24),
    Sketcher.Constraint("Equal", 24, 26),
    Sketcher.Constraint("Equal", 28, 30),
    Sketcher.Constraint("Equal", 32, 34),
    Sketcher.Constraint("Equal", 36, 38),
    Sketcher.Constraint("Equal", 40, 42),
    Sketcher.Constraint("Equal", 44, 46),
    Sketcher.Constraint("Equal", 48, 49),
    Sketcher.Constraint("Equal", 51, 53),
    Sketcher.Constraint("Equal", 55, 58),
    Sketcher.Constraint("Equal", 60, 61),
    Sketcher.Constraint("Equal", 63, 65),
    Sketcher.Constraint("Equal", 65, 66),
    Sketcher.Constraint("Equal", 66, 67),
    Sketcher.Constraint("Equal", 67, 69),
    Sketcher.Constraint("Equal", 71, 73),
    Sketcher.Constraint("Equal", 75, 77),
    Sketcher.Constraint("Equal", 79, 81),
    Sketcher.Constraint("Equal", 83, 85),
    Sketcher.Constraint("Symmetric", 5, 3, 9, 3, -2),
    Sketcher.Constraint("Symmetric", 12, 3, 23, 3, -2),
    Sketcher.Constraint("Symmetric", 83, 3, 85, 3, -2),
    Sketcher.Constraint("Symmetric", 17, 3, 66, 3, -1),
    Sketcher.Constraint("Symmetric", 19, 3, 67, 3, -1),
    Sketcher.Constraint("PointOnObject", 33, 2, -1),
    Sketcher.Constraint("PointOnObject", 55, 2, -1),
    Sketcher.Constraint("Horizontal", 12, 3, 14, 3),
    Sketcher.Constraint("Horizontal", 17, 3, 19, 3),
    Sketcher.Constraint("Horizontal", 44, 3, 46, 3),
    Sketcher.Constraint("Horizontal", 32, 3, 49, 3),
    Sketcher.Constraint("Horizontal", 28, 3, 58, 3),
    Sketcher.Constraint("Horizontal", 40, 3, 61, 3),
    Sketcher.Constraint("Horizontal", 67, 3, 69, 3),
    Sketcher.Constraint("Vertical", 3, 3, 7, 3),
    Sketcher.Constraint("Vertical", 1, 3, 11, 3),
    Sketcher.Constraint("Vertical", 7, 3, 12, 3),
    Sketcher.Constraint("Vertical", 11, 3, 23, 3),
    Sketcher.Constraint("Vertical", 30, 3, 34, 3),
    Sketcher.Constraint("Vertical", 32, 3, 36, 3),
    Sketcher.Constraint("Vertical", 34, 3, 38, 3),
    Sketcher.Constraint("Vertical", 36, 3, 40, 3),
    Sketcher.Constraint("Vertical", 38, 3, 42, 3),
    Sketcher.Constraint("Vertical", 40, 3, 44, 3),
    Sketcher.Constraint("Vertical", 46, 3, 49, 3),
    Sketcher.Constraint("Vertical", 48, 3, 51, 3),
    Sketcher.Constraint("Vertical", 49, 3, 53, 3),
    Sketcher.Constraint("Vertical", 51, 3, 55, 3),
    Sketcher.Constraint("Vertical", 55, 3, 63, 3),
    Sketcher.Constraint("Vertical", 23, 3, 69, 3),
    Sketcher.Constraint("Vertical", 12, 3, 71, 3),
    Sketcher.Constraint("Vertical", 69, 3, 73, 3),
    Sketcher.Constraint("Vertical", 71, 3, 75, 3),
    Sketcher.Constraint("Vertical", 73, 3, 77, 3),
    Sketcher.Constraint("Vertical", 75, 3, 79, 3),
    Sketcher.Constraint("Equal", 2, 25),
    Sketcher.Constraint("Equal", 43, 45),
    Sketcher.Constraint("Equal", 27, 57),
    Sketcher.Constraint("Equal", 82, 84),
    Sketcher.Constraint("Diameter", 12, Q("0.125 in")),
    Sketcher.Constraint("DistanceX", 62, 1, 62, 2, Q("1 in")),
    Sketcher.Constraint("DistanceX", 80, 2, 80, 1, Q("0.075 in")),
    Sketcher.Constraint("DistanceY", -1, 1, 25, 2, Q("0.85 in")),
    Sketcher.Constraint("DistanceY", 37, 2, -1, 1, Q("0.55 in")),
    Sketcher.Constraint("DistanceY", 68, 2, -1, 1, Q("1.55 in")),
    Sketcher.Constraint("DistanceX", 24, 3, -1, 1, Q("1 in")),
    Sketcher.Constraint("DistanceX", 32, 3, -1, 1, Q("0.875 in")),
    Sketcher.Constraint("DistanceY", -1, 1, 30, 2, Q("0.325 in")),
    Sketcher.Constraint("DistanceX", 19, 3, -1, 1, Q("1.3 in")),
    Sketcher.Constraint("DistanceY", -1, 1, 0, 2, Q("1.9 in")),
    Sketcher.Constraint("DistanceY", -1, 1, 4, 2, Q("2.5 in")),
    Sketcher.Constraint("DistanceY", -1, 1, 13, 2, Q("1.4 in")),
    Sketcher.Constraint("DistanceY", 76, 2, -1, 1, Q("2.4 in")),
    Sketcher.Constraint("DistanceY", 80, 2, -1, 1, Q("2.1 in")),
    Sketcher.Constraint("DistanceX", 0, 2, 0, 1, Q("1.625 in")),
    Sketcher.Constraint("DistanceX", 4, 2, 4, 1, Q("0.225 in")),
    Sketcher.Constraint("DistanceX", 13, 2, 13, 1, Q("0.775 in")),
    Sketcher.Constraint("DistanceX", 20, 2, 20, 1, Q("1.225 in")),
    Sketcher.Constraint("DistanceX", 29, 2, 29, 1, Q("1.375 in")),
    Sketcher.Constraint("DistanceX", -1, 1, 48, 3, Q("2.27 in")),
    Sketcher.Constraint("DistanceY", 41, 2, -1, 1, Q("0.95 in")),
    Sketcher.Constraint("DistanceY", 72, 2, -1, 1, Q("2.15 in")),
    Sketcher.Constraint("DistanceX", -1, 1, 16, 3, Q("2.0625 in")),
    Sketcher.Constraint("DistanceX", -1, 1, 17, 3, Q("1.325 in")),
    Sketcher.Constraint("DistanceX", -1, 1, 18, 3, Q("1.0125 in")),
    Sketcher.Constraint("DistanceY", -1, 1, 18, 3, Q("1.2625 in")),
    Sketcher.Constraint("DistanceY", -1, 1, 24, 3, Q("1.0375 in")),
    Sketcher.Constraint("DistanceX", 26, 3, -1, 1, Q("2.2375 in")),
    Sketcher.Constraint("DistanceX", -1, 1, 58, 3, Q("2.2575 in")),
    Sketcher.Constraint("DistanceX", -1, 1, 65, 3, Q("0.9575 in")),
    Sketcher.Constraint("DistanceY", 65, 3, -1, 1, Q("0.6625 in")),
    Sketcher.Constraint("DistanceX", -1, 1, 81, 3, Q("1.4125 in")),
])
pocket2 = body.newObject("PartDesign::Pocket", "Pocket001")
pocket2.Profile = sketch3
pocket2.Length = Q("0.1 in")

doc.recompute()
